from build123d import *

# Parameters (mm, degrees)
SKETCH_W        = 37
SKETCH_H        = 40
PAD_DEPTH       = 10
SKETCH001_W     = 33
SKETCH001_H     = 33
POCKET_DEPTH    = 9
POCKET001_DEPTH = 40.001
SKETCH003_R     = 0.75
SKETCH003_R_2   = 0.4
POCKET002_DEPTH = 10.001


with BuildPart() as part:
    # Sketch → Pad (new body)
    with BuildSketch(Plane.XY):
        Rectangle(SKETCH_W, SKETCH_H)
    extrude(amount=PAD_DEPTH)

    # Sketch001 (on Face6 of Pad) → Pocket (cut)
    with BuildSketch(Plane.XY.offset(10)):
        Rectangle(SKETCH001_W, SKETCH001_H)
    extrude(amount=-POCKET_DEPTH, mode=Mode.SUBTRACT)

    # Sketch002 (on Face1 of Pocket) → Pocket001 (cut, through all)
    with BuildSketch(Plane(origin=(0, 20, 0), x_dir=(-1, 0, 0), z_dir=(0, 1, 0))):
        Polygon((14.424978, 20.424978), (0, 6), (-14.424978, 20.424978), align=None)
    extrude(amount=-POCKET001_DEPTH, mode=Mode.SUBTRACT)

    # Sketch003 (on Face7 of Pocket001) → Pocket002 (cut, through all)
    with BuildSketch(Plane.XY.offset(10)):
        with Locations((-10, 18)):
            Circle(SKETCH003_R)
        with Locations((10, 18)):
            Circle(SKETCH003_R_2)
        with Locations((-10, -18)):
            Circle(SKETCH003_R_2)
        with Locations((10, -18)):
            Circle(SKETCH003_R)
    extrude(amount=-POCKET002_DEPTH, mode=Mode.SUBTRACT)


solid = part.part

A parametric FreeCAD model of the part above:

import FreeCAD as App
import Part
import Sketcher
from FreeCAD import Vector


def add_polygon(sketch, points):
    """Adds a closed chain of lines whose ends are joined by coincident constraints."""
    first, n = sketch.GeometryCount, len(points)
    for a, b in zip(points, points[1:] + points[:1]):
        sketch.addGeometry(Part.LineSegment(App.Vector(*a, 0), App.Vector(*b, 0)), False)
    for i in range(n):
        sketch.addConstraint(Sketcher.Constraint("Coincident", first + i, 2, first + (i + 1) % n, 1))

doc = App.newDocument("Part")
body = doc.addObject("PartDesign::Body", "Body")

sketch1 = doc.addObject("Sketcher::SketchObject", "Sketch")
body.addObject(sketch1)
sketch1.AttachmentSupport = (doc.XY_Plane, [""])
sketch1.MapMode = "FlatFace"
add_polygon(sketch1, [(-18, 20), (-18, -20), (18, -20), (18, 20)])
sketch1.addConstraint([
    Sketcher.Constraint("Vertical", 0),
    Sketcher.Constraint("Horizontal", 1),
    Sketcher.Constraint("Vertical", 2),
    Sketcher.Constraint("Horizontal", 3),
    Sketcher.Constraint("Symmetric", 0, 2, 2, 2, -1, 1),
    Sketcher.Constraint("DistanceX", 1, 1, 1, 2, 37.0),
    Sketcher.Constraint("DistanceY", 0, 2, 0, 1, 40.0),
])
pad1 = doc.addObject("PartDesign::Pad", "Pad")
body.addObject(pad1)
pad1.Profile = sketch1
pad1.Length = 10

sketch2 = doc.addObject("Sketcher::SketchObject", "Sketch001")
body.addObject(sketch2)
sketch2.AttachmentSupport = (doc.XY_Plane, [""])
sketch2.MapMode = "FlatFace"
sketch2.AttachmentOffset = App.Placement(Vector(0, 0, 10), App.Rotation())
add_polygon(sketch2, [(-16, 16), (-16, -16), (16, -16), (16, 16)])
sketch2.addConstraint([
    Sketcher.Constraint("Vertical", 0),
    Sketcher.Constraint("Horizontal", 1),
    Sketcher.Constraint("Vertical", 2),
    Sketcher.Constraint("Horizontal", 3),
    Sketcher.Constraint("Symmetric", 0, 2, 2, 2, -1, 1),
    Sketcher.Constraint("Equal", 3, 0),
    Sketcher.Constraint("DistanceX", 1, 1, 1, 2, 33.0),
])
pocket1 = doc.addObject("PartDesign::Pocket", "Pocket")
body.addObject(pocket1)
pocket1.Profile = sketch2
pocket1.Length = 9

sketch3 = doc.addObject("Sketcher::SketchObject", "Sketch002")
body.addObject(sketch3)
sketch3.AttachmentSupport = (doc.XZ_Plane, [""])
sketch3.MapMode = "FlatFace"
sketch3.AttachmentOffset = App.Placement(Vector(0, 0, -20), App.Rotation())
add_polygon(sketch3, [(0, 6), (-14, 20), (14, 20)])
sketch3.addConstraint([
    Sketcher.Constraint("Horizontal", 1),
    Sketcher.Constraint("PointOnObject", 2, 2, -2),
    Sketcher.Constraint("Perpendicular", 0, 2),
    Sketcher.Constraint("Equal", 0, 2),
    Sketcher.Constraint("DistanceY", -1, 1, 2, 2, 6.0),
    Sketcher.Constraint("Distance", 0, 20.4),
])
pocket2 = doc.addObject("PartDesign::Pocket", "Pocket001")
body.addObject(pocket2)
pocket2.Profile = sketch3
pocket2.Type = "ThroughAll"
pocket2.Reversed = True

sketch4 = doc.addObject("Sketcher::SketchObject", "Sketch003")
body.addObject(sketch4)
sketch4.AttachmentSupport = (doc.XY_Plane, [""])
sketch4.MapMode = "FlatFace"
sketch4.AttachmentOffset = App.Placement(Vector(0, 0, 10), App.Rotation())
sketch4.addGeometry([
    Part.Circle(Vector(-10, 18, 0), Vector(0, 0, 1), 0.75),
    Part.Circle(Vector(10, 18, 0), Vector(0, 0, 1), 0.4),
    Part.Circle(Vector(-10, -18, 0), Vector(0, 0, 1), 0.4),
    Part.Circle(Vector(10, -18, 0), Vector(0, 0, 1), 0.75),
], False)
sketch4.addConstraint([
    Sketcher.Constraint("Equal", 1, 2),
    Sketcher.Constraint("Equal", 0, 3),
    Sketcher.Constraint("Symmetric", 1, 3, 2, 3, -1, 1),
    Sketcher.Constraint("Symmetric", 0, 3, 3, 3, -1, 1),
    Sketcher.Constraint("Symmetric", 0, 3, 1, 3, -2),
    Sketcher.Constraint("Diameter", 0, 1.5),
    Sketcher.Constraint("Diameter", 1, 0.8),
    Sketcher.Constraint("DistanceX", 0, 3, -1, 1, 10.0),
    Sketcher.Constraint("DistanceY", -1, 1, 0, 3, 18.0),
])
pocket3 = doc.addObject("PartDesign::Pocket", "Pocket002")
body.addObject(pocket3)
pocket3.Profile = sketch4
pocket3.Type = "ThroughAll"

doc.recompute()
